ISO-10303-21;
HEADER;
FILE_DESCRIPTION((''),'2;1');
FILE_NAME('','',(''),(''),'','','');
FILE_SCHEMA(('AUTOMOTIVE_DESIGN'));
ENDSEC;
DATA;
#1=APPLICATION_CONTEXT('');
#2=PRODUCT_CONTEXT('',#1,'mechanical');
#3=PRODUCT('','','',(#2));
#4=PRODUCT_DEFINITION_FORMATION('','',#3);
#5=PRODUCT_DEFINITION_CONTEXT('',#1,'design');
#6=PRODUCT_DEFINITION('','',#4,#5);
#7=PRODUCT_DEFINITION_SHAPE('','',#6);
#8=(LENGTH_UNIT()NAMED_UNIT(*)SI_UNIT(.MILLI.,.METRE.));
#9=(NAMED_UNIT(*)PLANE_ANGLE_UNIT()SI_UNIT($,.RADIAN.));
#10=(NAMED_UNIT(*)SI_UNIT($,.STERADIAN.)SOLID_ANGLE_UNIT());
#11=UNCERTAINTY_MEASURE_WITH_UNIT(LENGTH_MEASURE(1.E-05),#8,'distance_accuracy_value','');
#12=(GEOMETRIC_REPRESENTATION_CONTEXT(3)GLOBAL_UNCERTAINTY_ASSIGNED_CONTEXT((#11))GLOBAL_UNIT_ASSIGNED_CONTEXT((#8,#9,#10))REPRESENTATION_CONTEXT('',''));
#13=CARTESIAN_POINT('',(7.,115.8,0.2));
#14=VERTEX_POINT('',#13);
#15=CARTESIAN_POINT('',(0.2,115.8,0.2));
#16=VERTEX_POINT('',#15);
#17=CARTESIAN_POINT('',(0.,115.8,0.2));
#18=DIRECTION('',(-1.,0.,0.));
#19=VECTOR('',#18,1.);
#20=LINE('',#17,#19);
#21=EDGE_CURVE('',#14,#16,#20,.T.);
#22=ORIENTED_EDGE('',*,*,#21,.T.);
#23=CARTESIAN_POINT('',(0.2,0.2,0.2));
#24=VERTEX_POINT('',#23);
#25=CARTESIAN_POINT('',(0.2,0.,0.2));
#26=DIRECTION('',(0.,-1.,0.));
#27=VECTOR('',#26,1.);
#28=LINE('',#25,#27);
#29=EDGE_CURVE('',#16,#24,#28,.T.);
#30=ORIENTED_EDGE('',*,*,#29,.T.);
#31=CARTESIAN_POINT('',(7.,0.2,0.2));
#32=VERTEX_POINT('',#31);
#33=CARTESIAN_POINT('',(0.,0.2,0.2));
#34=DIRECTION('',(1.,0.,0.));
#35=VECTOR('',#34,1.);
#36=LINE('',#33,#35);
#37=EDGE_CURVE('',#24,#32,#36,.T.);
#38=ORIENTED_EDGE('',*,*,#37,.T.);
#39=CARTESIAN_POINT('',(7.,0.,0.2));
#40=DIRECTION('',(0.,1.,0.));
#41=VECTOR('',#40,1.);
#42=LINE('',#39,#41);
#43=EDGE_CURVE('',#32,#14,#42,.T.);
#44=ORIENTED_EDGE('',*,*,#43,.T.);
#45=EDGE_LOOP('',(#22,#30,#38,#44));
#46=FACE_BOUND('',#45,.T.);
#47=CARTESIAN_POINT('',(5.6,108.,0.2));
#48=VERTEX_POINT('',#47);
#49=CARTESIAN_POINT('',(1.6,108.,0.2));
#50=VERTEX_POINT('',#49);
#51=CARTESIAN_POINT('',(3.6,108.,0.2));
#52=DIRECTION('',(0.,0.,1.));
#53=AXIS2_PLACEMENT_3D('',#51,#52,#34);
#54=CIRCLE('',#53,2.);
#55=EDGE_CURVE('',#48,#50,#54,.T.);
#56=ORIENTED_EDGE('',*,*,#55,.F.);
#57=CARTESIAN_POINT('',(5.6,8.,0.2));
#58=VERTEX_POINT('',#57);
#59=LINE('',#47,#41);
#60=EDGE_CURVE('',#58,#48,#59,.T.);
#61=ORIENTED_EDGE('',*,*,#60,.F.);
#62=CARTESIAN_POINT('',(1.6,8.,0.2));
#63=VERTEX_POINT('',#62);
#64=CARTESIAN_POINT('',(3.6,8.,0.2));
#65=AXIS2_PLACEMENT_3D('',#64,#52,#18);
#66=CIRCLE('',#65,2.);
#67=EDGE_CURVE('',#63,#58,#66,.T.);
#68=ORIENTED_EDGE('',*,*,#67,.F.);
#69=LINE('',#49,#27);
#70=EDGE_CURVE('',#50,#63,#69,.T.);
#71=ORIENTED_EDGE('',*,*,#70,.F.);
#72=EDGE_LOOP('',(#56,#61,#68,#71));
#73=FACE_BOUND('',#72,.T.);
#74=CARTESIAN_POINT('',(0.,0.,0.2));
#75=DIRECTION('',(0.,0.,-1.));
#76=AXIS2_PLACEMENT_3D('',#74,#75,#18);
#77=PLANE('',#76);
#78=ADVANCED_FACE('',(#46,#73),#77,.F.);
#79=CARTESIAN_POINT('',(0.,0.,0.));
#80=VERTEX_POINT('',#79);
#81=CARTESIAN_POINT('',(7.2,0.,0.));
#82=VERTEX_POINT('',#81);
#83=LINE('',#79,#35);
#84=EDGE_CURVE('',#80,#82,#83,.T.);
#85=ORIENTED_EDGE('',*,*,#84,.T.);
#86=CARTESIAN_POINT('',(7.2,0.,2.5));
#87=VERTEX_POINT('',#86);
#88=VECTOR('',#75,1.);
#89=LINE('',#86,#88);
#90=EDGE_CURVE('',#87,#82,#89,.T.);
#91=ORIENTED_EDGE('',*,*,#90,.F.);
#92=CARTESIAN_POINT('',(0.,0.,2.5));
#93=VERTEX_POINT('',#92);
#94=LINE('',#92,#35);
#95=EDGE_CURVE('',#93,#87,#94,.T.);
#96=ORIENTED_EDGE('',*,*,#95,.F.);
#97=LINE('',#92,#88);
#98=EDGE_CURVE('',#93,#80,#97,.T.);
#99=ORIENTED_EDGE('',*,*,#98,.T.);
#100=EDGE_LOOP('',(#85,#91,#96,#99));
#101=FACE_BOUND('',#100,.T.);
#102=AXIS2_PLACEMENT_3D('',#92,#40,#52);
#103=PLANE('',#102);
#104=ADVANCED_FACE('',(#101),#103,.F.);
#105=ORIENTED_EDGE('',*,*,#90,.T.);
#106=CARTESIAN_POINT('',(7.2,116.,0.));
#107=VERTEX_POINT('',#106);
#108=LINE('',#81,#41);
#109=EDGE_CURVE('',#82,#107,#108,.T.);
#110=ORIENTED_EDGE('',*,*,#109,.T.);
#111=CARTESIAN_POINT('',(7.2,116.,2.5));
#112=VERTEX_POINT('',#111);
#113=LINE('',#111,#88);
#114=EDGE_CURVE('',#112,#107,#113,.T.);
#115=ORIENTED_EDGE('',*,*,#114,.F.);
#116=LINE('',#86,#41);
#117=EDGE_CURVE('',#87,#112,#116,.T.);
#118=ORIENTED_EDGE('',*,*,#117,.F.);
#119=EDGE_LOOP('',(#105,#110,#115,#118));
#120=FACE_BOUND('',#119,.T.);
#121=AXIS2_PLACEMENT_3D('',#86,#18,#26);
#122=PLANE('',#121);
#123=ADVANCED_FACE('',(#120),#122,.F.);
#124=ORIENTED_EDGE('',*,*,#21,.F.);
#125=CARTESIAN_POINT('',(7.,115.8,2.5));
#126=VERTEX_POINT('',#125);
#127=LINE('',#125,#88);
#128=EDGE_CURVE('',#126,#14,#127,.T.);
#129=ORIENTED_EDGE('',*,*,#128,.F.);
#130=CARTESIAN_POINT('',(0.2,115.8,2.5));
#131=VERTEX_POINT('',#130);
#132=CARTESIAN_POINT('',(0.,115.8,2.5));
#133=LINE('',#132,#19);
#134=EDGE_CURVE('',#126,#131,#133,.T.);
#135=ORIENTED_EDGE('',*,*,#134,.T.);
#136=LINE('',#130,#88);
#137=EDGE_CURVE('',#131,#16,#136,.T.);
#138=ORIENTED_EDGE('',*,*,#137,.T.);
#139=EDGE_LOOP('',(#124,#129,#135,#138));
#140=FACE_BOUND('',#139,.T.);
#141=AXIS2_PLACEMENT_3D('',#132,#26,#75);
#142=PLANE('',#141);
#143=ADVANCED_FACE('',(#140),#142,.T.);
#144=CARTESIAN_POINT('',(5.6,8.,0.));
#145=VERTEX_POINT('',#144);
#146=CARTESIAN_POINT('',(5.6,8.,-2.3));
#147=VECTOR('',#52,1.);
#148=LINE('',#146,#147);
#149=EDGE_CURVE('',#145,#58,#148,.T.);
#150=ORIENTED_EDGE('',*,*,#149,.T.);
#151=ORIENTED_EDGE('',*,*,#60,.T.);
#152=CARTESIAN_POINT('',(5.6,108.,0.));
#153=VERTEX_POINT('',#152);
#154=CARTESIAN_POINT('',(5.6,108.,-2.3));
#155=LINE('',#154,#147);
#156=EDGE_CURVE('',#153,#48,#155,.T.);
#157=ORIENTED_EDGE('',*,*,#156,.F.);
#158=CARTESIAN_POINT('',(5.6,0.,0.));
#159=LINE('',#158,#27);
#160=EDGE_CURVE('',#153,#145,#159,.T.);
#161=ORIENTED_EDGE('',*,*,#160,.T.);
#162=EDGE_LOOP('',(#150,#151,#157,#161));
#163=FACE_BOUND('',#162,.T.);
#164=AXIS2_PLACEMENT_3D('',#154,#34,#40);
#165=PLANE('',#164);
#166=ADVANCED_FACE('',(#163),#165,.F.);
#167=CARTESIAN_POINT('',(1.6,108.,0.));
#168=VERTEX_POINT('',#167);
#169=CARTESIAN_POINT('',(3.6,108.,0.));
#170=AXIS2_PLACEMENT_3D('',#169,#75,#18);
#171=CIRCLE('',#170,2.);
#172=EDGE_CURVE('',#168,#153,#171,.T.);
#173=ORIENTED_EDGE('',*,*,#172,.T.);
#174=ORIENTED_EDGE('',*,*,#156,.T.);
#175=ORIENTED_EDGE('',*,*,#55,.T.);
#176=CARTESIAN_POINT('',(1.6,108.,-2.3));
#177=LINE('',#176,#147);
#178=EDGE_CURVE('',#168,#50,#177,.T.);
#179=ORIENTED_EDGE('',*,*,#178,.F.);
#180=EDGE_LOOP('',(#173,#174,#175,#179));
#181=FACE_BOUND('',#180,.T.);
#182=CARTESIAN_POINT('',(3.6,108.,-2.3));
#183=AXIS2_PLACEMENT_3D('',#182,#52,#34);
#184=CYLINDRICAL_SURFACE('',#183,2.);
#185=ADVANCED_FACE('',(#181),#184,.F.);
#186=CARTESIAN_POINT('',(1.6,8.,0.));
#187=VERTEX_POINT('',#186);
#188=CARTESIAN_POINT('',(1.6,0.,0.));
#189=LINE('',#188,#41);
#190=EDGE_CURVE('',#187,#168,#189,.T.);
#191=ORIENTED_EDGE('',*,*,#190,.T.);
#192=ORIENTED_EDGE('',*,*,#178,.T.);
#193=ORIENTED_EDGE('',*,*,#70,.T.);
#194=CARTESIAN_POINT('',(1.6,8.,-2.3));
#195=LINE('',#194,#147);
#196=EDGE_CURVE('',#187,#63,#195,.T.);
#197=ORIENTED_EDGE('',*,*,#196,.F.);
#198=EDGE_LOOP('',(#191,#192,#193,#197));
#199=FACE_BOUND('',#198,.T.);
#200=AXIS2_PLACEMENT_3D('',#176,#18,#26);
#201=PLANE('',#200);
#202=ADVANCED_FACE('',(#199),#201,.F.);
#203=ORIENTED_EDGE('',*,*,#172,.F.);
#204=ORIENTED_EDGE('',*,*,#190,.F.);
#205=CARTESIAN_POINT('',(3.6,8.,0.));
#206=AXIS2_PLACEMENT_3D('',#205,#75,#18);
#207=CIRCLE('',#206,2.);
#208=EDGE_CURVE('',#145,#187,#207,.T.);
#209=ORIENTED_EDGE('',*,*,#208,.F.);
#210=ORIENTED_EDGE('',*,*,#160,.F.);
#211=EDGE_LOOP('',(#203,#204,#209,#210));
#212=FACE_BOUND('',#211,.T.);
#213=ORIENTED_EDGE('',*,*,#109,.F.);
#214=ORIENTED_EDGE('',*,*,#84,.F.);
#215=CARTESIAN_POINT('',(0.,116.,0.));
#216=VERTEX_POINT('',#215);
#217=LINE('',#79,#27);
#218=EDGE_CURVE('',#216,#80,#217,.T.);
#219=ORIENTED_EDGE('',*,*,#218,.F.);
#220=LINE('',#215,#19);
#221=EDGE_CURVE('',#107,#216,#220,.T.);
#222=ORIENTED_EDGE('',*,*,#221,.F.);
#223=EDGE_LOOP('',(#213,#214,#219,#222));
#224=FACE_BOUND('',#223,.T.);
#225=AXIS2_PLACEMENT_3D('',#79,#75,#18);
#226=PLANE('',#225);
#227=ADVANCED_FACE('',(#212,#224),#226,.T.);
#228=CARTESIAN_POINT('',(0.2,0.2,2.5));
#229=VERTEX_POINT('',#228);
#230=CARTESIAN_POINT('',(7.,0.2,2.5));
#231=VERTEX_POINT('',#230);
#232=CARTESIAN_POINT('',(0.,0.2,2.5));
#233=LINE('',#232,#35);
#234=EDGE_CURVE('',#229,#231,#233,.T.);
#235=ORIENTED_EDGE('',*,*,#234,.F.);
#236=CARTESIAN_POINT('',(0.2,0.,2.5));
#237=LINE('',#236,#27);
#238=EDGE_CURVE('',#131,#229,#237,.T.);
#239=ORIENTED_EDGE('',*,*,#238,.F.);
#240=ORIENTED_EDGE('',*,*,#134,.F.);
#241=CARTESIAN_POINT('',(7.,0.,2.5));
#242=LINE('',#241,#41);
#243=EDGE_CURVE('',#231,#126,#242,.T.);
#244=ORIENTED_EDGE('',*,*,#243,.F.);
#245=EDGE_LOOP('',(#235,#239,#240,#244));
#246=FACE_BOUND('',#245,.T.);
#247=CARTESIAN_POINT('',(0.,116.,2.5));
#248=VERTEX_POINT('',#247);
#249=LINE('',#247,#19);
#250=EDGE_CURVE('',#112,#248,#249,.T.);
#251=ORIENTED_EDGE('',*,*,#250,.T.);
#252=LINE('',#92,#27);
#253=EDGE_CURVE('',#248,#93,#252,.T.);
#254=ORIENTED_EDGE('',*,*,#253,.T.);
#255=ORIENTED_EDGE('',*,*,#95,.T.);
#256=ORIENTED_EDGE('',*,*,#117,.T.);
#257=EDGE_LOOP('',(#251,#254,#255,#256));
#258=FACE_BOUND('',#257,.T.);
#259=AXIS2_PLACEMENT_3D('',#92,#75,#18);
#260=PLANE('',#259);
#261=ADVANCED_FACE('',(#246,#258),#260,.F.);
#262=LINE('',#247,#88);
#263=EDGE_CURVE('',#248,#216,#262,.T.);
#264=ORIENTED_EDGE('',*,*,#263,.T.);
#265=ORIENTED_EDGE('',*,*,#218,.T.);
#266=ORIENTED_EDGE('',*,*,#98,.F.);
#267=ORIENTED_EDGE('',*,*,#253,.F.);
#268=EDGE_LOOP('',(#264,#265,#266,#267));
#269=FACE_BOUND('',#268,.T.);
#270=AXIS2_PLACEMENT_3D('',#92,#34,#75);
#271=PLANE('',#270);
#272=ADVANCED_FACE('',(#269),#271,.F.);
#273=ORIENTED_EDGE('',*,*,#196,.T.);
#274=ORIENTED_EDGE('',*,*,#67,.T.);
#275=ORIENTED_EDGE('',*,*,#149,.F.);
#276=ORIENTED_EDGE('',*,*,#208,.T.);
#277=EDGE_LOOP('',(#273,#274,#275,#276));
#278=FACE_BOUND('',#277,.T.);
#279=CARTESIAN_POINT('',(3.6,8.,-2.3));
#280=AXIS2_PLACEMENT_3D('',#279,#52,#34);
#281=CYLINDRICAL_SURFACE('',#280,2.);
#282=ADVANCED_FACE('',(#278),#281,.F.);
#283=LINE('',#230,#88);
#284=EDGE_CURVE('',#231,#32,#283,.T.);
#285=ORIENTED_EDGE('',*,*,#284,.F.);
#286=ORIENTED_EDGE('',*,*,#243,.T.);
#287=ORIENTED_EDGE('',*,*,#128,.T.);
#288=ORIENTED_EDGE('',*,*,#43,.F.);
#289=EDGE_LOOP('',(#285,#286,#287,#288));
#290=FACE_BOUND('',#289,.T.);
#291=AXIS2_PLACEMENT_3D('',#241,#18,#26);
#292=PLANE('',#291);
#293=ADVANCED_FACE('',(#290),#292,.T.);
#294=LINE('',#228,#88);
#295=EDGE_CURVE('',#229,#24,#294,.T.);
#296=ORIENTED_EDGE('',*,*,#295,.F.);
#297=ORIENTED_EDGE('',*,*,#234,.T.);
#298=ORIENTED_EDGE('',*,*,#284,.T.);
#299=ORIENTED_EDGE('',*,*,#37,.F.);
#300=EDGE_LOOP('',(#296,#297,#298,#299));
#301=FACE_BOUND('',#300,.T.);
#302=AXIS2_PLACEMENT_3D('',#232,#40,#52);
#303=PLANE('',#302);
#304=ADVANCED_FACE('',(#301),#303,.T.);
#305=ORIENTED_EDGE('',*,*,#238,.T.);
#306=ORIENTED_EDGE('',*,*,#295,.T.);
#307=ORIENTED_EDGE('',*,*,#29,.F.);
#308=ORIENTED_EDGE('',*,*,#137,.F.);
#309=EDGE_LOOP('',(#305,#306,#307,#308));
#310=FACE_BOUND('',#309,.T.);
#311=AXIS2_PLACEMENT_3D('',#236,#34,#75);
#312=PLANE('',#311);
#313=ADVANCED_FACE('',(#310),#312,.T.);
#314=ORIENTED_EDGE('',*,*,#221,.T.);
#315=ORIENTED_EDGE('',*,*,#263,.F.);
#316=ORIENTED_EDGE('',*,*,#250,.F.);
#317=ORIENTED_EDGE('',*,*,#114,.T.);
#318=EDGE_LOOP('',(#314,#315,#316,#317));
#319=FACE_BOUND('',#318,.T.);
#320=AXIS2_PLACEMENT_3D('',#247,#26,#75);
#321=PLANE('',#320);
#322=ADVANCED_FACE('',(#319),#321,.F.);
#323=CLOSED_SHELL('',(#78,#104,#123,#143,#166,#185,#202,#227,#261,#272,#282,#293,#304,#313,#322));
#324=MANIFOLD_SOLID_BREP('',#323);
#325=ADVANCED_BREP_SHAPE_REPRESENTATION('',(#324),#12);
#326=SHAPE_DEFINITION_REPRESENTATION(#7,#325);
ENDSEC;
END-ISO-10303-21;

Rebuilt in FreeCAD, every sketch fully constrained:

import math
import FreeCAD as App
import Part
import Sketcher
from FreeCAD import Vector


def faces_at(feature, points):
    """Names of the faces that lie closest to the given points."""
    faces = feature.Shape.Faces
    near = lambda p: min(range(len(faces)), key=lambda i: faces[i].distToShape(Part.Vertex(*p))[0])
    return sorted({f"Face{near(p) + 1}" for p in points})


def add_polygon(sketch, points):
    """Adds a closed chain of lines whose ends are joined by coincident constraints."""
    first, n = sketch.GeometryCount, len(points)
    for a, b in zip(points, points[1:] + points[:1]):
        sketch.addGeometry(Part.LineSegment(App.Vector(*a, 0), App.Vector(*b, 0)), False)
    for i in range(n):
        sketch.addConstraint(Sketcher.Constraint("Coincident", first + i, 2, first + (i + 1) % n, 1))

doc = App.newDocument("Part")
body = doc.addObject("PartDesign::Body", "Body")

# Sketch on XY plane
sketch1 = body.newObject("Sketcher::SketchObject", "Sketch")
sketch1.AttachmentSupport = (doc.getObject("XY_Plane"), [""])
sketch1.MapMode = "FlatFace"
add_polygon(sketch1, [(0, 116), (0, 0), (7.2, 0), (7.2, 116)])  # lines 0-3
sketch1.addConstraint([
    Sketcher.Constraint("Vertical", 0),
    Sketcher.Constraint("Horizontal", 1),
    Sketcher.Constraint("Vertical", 2),
    Sketcher.Constraint("Horizontal", 3),
    Sketcher.Constraint("Coincident", 0, 2, -1, 1),
    Sketcher.Constraint("DistanceY", 0, 2, 0, 1, 116.0),
    Sketcher.Constraint("DistanceX", 1, 1, 1, 2, 7.2),
])
pad1 = body.newObject("PartDesign::Pad", "Pad")
pad1.Profile = sketch1
pad1.Length = 2.5
doc.recompute()

thickness = body.newObject("PartDesign::Thickness", "Thickness")
thickness.Base = (pad1, faces_at(pad1, [(3.6, 58, 2.5)]))
thickness.Value = 0.2
thickness.Reversed = True
thickness.Join = "Intersection"

# Sketch on XY plane
sketch2 = body.newObject("Sketcher::SketchObject", "Sketch001")
sketch2.AttachmentSupport = (doc.getObject("XY_Plane"), [""])
sketch2.MapMode = "FlatFace"
sketch2.AttachmentOffset = App.Placement(Vector(0, 0, 0.2), App.Rotation())
sketch2.addGeometry([
    Part.LineSegment(Vector(5.6, 8, 0), Vector(5.6, 108, 0)),
    Part.ArcOfCircle(Part.Circle(Vector(3.6, 108, 0), Vector(0, 0, 1), 2), math.radians(0), math.radians(180)),
    Part.LineSegment(Vector(1.6, 108, 0), Vector(1.6, 8, 0)),
    Part.ArcOfCircle(Part.Circle(Vector(3.6, 8, 0), Vector(0, 0, 1), 2), math.radians(180), math.radians(360)),
], False)
sketch2.addConstraint([
    Sketcher.Constraint("Tangent", 0, 2, 1, 1),
    Sketcher.Constraint("Tangent", 1, 2, 2, 1),
    Sketcher.Constraint("Tangent", 2, 2, 3, 1),
    Sketcher.Constraint("Tangent", 3, 2, 0, 1),
    Sketcher.Constraint("Vertical", 0),
    Sketcher.Constraint("Vertical", 2),
    Sketcher.Constraint("Radius", 1, 2.0),
    Sketcher.Constraint("DistanceY", 0, 1, 0, 2, 100.0),
    Sketcher.Constraint("DistanceY", -1, 1, 1, 3, 108.0),
    Sketcher.Constraint("DistanceX", -1, 1, 1, 3, 3.6),
])
pocket1 = body.newObject("PartDesign::Pocket", "Pocket")
pocket1.Profile = sketch2
pocket1.Length = 2.5

doc.recompute()
